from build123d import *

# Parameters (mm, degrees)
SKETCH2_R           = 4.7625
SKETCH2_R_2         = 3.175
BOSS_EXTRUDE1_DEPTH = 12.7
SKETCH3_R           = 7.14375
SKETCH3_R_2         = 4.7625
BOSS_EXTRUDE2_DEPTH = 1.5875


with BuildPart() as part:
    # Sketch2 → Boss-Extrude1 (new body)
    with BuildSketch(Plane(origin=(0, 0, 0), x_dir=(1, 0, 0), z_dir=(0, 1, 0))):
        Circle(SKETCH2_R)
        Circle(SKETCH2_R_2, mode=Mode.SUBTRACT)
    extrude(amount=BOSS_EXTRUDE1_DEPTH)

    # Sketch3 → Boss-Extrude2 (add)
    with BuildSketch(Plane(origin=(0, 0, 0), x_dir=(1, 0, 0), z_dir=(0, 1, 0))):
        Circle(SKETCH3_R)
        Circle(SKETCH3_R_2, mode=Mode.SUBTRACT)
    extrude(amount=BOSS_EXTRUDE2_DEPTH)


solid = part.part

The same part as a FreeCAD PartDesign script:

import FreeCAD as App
import Part
import Sketcher
Q = App.Units.Quantity

doc = App.newDocument("Part")
body = doc.addObject("PartDesign::Body", "Body")

# Sketch on XZ plane
sketch1 = doc.addObject("Sketcher::SketchObject", "Sketch")
body.addObject(sketch1)
sketch1.AttachmentSupport = (doc.XZ_Plane, [""])
sketch1.MapMode = "FlatFace"
sketch1.addGeometry(Part.Circle(App.Vector(0, 0, 0), App.Vector(0, 0, 1), 4.8), False)
sketch1.addGeometry(Part.Circle(App.Vector(0, 0, 0), App.Vector(0, 0, 1), 3.2), False)
sketch1.addConstraint(Sketcher.Constraint("Coincident", 0, 3, -1, 1))
sketch1.addConstraint(Sketcher.Constraint("Coincident", 1, 3, -1, 1))
sketch1.addConstraint(Sketcher.Constraint("Diameter", 1, Q("0.25 in")))
sketch1.addConstraint(Sketcher.Constraint("Diameter", 0, Q("0.375 in")))
pad1 = doc.addObject("PartDesign::Pad", "Pad")
body.addObject(pad1)
pad1.Profile = sketch1
pad1.Length = Q("0.5 in")
pad1.Reversed = True

# Sketch on XZ plane
sketch2 = doc.addObject("Sketcher::SketchObject", "Sketch001")
body.addObject(sketch2)
sketch2.AttachmentSupport = (doc.XZ_Plane, [""])
sketch2.MapMode = "FlatFace"
sketch2.addGeometry(Part.Circle(App.Vector(0, 0, 0), App.Vector(0, 0, 1), 7.1), False)
sketch2.addGeometry(Part.Circle(App.Vector(0, 0, 0), App.Vector(0, 0, 1), 4.8), False)
sketch2.addConstraint(Sketcher.Constraint("Coincident", 0, 3, -1, 1))
sketch2.addConstraint(Sketcher.Constraint("Coincident", 1, 3, -1, 1))
sketch2.addConstraint(Sketcher.Constraint("Diameter", 0, Q("0.5625 in")))
sketch2.addConstraint(Sketcher.Constraint("Diameter", 1, Q("0.375 in")))
pad2 = doc.addObject("PartDesign::Pad", "Pad001")
body.addObject(pad2)
pad2.Profile = sketch2
pad2.Length = Q("0.0625 in")
pad2.Reversed = True

doc.recompute()
